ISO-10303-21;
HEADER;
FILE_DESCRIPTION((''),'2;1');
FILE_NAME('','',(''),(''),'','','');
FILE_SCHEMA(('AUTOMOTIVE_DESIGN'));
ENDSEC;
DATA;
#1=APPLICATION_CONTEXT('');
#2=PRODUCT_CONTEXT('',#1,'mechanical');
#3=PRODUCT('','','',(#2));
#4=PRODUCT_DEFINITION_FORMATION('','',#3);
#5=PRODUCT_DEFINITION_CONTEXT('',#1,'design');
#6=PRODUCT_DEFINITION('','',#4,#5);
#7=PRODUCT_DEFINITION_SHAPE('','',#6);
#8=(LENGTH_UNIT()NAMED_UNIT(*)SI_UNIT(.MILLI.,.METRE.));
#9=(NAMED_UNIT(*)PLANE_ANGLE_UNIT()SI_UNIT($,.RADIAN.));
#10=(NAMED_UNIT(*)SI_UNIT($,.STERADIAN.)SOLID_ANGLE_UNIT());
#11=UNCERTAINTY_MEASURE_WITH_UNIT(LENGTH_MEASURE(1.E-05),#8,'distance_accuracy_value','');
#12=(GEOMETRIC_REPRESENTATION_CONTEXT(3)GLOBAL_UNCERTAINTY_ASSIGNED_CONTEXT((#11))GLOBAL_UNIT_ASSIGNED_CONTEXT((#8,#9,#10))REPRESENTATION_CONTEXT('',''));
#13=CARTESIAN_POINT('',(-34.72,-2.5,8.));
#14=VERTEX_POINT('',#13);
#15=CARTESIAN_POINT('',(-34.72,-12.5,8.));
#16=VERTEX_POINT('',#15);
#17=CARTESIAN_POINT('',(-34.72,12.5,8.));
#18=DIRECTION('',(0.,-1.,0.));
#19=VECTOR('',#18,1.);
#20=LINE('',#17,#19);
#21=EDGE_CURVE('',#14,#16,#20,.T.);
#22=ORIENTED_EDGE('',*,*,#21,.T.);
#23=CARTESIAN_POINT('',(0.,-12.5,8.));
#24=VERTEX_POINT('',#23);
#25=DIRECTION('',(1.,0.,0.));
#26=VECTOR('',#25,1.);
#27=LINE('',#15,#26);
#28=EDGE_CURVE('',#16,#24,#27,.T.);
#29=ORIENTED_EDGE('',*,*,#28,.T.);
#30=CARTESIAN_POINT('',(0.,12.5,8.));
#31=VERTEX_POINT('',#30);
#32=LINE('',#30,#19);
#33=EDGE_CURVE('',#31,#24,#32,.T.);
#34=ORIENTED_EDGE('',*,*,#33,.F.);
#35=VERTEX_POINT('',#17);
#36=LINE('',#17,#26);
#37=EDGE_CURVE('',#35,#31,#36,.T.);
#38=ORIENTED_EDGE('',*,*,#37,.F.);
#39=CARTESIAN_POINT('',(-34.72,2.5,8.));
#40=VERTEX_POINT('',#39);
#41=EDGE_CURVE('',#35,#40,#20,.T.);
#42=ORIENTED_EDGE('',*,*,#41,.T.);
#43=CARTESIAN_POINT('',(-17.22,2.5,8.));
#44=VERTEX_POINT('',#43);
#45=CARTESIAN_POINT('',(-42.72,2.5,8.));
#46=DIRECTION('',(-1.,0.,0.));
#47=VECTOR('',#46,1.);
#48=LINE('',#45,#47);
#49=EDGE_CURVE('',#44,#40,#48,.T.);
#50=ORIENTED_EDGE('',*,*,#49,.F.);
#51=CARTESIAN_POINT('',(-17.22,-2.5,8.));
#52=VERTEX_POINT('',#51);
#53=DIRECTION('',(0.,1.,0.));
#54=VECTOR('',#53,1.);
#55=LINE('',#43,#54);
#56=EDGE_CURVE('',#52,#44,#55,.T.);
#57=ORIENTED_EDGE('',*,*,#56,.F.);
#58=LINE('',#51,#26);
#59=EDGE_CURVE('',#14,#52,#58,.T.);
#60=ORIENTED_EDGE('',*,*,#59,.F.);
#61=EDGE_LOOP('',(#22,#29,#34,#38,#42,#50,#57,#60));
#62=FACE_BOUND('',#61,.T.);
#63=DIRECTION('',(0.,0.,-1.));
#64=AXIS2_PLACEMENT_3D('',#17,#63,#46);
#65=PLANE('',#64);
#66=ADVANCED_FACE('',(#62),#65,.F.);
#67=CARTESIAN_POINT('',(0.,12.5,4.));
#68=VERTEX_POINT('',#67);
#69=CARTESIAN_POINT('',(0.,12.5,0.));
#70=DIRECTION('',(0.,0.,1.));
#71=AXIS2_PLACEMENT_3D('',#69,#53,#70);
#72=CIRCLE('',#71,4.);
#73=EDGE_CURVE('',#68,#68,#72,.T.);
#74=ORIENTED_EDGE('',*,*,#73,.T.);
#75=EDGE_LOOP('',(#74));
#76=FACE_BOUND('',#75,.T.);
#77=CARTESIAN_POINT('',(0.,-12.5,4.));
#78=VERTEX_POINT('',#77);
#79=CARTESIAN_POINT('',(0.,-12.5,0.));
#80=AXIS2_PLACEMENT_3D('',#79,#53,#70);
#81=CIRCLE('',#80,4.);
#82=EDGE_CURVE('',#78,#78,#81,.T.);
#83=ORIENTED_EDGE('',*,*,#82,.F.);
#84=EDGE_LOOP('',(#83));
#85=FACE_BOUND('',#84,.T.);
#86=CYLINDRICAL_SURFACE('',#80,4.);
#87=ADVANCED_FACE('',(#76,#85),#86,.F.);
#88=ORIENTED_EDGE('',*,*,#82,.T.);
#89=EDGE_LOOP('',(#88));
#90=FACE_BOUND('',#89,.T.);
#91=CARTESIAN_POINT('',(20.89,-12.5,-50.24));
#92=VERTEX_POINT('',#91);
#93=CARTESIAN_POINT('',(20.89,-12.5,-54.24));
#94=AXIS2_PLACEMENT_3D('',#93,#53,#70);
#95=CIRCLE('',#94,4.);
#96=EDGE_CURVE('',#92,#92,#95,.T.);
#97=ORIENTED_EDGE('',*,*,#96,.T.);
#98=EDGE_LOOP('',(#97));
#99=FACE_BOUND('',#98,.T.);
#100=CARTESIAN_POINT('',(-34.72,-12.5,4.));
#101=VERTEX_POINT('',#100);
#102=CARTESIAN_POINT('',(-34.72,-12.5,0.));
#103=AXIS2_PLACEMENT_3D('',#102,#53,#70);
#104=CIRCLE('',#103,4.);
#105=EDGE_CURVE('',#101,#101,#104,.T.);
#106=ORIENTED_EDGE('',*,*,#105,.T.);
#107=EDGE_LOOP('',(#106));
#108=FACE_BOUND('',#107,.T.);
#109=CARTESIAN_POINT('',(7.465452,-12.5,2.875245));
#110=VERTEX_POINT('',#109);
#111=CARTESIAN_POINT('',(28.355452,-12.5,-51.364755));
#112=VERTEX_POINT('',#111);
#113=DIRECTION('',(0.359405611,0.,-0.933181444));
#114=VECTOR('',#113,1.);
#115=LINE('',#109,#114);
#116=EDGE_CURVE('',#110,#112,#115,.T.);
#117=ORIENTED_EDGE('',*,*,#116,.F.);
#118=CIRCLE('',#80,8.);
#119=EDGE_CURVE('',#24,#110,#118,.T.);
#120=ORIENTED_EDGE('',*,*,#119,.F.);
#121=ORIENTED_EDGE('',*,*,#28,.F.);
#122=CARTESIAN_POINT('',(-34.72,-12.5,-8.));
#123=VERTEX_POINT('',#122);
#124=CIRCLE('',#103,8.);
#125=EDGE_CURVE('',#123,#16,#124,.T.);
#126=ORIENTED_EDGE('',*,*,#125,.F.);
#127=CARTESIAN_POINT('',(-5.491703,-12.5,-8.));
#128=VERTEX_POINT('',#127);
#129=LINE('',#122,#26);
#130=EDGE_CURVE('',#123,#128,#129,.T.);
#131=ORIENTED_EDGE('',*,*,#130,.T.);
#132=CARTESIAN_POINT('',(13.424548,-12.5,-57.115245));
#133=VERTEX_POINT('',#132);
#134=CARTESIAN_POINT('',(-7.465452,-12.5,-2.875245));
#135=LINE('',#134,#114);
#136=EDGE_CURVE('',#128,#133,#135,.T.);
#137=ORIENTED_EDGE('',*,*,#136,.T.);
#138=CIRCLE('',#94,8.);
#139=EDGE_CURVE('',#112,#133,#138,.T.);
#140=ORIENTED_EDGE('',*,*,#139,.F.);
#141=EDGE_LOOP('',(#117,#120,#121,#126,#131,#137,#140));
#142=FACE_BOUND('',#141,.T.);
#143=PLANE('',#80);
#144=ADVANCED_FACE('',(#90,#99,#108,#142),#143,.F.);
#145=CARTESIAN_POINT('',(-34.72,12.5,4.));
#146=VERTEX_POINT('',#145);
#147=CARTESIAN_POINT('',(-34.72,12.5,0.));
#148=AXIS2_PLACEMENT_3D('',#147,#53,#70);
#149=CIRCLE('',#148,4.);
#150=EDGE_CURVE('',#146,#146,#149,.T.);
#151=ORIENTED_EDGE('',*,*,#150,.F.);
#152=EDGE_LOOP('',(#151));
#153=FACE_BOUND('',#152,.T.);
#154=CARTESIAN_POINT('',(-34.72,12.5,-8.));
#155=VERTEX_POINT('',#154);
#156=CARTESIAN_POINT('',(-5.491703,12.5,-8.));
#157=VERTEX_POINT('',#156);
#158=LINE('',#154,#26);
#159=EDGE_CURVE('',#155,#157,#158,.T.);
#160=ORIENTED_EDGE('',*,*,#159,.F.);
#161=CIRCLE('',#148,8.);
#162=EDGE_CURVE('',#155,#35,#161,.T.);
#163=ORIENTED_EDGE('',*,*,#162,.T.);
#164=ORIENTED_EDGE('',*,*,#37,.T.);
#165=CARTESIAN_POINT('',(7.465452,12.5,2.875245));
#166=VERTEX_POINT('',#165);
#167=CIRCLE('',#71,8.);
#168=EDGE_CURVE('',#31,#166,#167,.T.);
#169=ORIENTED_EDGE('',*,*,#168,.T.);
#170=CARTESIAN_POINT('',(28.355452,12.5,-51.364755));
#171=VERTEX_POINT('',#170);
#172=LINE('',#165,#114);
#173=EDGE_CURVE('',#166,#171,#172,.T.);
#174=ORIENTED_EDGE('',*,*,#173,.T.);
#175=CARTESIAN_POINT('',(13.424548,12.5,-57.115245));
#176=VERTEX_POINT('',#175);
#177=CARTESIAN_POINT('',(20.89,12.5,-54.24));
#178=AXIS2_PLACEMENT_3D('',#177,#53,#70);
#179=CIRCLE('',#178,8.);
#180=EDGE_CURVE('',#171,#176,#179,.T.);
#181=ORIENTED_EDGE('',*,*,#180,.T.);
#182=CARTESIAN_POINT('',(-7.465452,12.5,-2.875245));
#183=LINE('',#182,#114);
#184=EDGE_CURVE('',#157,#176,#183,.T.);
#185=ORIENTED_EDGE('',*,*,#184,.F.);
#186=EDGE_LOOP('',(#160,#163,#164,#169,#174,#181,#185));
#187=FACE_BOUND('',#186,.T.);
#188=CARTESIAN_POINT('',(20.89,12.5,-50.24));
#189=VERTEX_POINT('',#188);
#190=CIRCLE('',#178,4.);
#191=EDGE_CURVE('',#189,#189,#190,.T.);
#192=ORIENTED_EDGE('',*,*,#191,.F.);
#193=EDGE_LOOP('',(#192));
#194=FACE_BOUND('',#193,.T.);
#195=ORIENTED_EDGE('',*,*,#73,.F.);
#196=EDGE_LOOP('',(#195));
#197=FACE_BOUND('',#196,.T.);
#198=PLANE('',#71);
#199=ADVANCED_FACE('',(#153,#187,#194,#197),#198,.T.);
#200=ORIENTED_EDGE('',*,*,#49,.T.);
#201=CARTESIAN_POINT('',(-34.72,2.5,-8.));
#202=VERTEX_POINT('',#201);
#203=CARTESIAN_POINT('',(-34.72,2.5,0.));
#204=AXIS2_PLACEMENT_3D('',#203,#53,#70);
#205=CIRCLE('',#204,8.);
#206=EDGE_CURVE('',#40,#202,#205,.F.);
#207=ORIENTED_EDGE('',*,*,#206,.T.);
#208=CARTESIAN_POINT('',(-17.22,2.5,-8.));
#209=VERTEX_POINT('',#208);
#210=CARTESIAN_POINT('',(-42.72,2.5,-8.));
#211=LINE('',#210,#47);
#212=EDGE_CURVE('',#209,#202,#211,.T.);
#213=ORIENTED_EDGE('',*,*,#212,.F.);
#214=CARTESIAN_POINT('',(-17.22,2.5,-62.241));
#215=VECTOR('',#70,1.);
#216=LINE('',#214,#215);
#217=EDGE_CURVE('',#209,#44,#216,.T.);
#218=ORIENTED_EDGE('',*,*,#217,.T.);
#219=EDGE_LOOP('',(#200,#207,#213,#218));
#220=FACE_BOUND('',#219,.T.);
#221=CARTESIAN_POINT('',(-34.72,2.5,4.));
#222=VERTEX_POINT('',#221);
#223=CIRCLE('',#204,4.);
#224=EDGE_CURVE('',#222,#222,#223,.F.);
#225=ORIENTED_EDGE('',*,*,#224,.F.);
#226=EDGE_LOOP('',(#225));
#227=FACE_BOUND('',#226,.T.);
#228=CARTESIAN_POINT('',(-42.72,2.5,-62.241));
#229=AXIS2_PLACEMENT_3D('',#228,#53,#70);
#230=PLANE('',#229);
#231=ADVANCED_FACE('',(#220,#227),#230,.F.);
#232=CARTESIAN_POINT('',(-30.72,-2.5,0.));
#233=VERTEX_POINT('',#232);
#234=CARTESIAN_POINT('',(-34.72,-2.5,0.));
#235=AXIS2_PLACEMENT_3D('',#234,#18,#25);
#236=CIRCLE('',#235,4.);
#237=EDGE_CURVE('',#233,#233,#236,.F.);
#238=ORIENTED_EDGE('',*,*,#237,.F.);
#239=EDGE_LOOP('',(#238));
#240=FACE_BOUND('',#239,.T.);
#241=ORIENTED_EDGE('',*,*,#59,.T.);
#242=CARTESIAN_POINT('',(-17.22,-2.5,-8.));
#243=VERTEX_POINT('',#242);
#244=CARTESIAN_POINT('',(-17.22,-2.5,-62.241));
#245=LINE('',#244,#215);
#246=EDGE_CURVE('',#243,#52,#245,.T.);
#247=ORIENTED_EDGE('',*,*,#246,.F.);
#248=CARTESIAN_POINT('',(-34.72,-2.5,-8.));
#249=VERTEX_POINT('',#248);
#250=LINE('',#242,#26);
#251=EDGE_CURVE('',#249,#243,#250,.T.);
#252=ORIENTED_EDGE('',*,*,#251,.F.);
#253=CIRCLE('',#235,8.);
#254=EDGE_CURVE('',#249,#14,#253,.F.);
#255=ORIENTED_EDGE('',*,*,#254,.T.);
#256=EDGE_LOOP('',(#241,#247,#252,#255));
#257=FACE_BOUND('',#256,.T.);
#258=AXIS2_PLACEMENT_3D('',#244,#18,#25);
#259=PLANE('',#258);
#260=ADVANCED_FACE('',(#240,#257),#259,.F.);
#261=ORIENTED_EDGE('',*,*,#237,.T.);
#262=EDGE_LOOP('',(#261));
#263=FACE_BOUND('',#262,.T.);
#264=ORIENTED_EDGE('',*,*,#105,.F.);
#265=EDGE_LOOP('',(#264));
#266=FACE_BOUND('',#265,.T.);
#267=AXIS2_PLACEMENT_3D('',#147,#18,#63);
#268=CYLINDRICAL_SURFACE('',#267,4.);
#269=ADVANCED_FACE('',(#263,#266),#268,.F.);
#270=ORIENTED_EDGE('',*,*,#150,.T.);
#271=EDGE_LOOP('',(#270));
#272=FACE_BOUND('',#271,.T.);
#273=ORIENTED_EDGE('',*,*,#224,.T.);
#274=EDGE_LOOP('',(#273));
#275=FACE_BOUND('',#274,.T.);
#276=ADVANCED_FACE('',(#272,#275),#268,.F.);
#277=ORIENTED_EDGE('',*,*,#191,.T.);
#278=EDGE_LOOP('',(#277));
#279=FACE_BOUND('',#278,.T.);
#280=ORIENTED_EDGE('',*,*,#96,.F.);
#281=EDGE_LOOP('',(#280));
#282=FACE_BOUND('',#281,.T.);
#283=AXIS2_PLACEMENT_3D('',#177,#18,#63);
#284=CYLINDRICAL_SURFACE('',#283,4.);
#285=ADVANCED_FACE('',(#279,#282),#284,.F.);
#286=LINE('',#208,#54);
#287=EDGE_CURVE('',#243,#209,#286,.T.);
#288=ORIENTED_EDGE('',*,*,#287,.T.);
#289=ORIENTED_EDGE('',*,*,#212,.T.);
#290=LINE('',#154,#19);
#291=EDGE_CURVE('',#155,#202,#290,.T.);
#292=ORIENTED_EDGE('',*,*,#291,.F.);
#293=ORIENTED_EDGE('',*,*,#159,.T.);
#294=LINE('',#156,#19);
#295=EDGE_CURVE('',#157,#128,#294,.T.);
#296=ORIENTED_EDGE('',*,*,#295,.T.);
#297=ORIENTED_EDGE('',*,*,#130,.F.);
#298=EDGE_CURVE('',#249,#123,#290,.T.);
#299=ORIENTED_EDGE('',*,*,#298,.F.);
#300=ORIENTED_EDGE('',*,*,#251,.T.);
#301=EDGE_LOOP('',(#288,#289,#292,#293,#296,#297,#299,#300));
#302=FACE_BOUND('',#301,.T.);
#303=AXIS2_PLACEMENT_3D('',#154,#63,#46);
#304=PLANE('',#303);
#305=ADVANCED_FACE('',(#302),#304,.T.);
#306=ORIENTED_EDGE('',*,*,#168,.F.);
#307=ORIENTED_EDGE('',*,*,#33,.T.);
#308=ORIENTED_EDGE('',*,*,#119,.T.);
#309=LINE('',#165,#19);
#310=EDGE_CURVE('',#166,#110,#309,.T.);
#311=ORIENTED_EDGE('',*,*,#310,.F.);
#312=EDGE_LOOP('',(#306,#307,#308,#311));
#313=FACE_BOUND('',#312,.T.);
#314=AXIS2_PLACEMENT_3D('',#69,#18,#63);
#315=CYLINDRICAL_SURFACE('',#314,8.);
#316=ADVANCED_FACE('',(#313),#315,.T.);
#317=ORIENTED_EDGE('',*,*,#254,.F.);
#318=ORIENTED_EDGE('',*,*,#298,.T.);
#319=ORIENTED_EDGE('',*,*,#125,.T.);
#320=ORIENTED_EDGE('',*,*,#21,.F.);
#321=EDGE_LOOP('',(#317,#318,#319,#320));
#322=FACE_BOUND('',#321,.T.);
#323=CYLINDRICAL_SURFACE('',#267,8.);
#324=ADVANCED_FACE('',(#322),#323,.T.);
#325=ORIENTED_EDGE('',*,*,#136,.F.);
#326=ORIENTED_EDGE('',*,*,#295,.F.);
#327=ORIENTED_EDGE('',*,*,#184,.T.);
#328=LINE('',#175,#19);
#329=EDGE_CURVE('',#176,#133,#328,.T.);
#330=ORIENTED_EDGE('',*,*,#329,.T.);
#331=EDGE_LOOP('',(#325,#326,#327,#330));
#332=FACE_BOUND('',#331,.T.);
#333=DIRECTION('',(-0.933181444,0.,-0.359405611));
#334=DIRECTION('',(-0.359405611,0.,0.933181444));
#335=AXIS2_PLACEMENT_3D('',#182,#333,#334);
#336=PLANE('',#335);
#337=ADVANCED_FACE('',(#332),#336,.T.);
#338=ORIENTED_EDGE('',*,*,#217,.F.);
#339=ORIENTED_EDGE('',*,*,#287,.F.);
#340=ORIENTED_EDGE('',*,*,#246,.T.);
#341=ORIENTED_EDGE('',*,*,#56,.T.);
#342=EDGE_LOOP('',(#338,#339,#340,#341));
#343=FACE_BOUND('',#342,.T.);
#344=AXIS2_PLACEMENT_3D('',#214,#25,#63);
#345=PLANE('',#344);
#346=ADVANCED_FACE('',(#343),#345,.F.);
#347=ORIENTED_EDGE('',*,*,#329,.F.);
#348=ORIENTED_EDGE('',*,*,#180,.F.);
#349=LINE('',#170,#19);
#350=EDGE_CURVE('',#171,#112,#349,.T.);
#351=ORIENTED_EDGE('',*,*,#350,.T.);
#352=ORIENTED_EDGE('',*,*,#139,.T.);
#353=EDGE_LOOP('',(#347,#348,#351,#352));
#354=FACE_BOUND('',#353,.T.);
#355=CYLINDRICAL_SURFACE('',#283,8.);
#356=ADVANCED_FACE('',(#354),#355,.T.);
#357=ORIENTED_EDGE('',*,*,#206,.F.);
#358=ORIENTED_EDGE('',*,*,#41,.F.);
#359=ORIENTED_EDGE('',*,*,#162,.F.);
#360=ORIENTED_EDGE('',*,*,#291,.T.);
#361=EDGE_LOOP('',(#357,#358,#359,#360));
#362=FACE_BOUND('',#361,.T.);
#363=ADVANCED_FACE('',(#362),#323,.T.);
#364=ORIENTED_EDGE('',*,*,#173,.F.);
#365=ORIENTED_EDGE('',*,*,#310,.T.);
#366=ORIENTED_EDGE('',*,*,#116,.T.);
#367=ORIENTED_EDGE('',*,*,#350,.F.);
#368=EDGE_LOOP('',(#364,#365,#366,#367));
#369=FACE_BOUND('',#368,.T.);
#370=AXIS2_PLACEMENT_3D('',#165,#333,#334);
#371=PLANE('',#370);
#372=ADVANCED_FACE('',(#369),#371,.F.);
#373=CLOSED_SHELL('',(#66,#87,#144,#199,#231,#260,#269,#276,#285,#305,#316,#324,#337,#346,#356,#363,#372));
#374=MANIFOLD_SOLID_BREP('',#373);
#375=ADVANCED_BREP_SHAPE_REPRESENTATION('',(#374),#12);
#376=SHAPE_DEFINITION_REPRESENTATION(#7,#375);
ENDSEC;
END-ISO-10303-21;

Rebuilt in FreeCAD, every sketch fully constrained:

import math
import FreeCAD as App
import Part
import Sketcher

doc = App.newDocument("Part")
body = doc.addObject("PartDesign::Body", "Body")

# Sketch on XZ plane
sketch1 = doc.addObject("Sketcher::SketchObject", "Sketch")
body.addObject(sketch1)
sketch1.AttachmentSupport = (doc.XZ_Plane, [""])
sketch1.MapMode = "FlatFace"
sketch1.addGeometry([
    Part.ArcOfCircle(Part.Circle(App.Vector(-34.7, 0, 0), App.Vector(0, 0, 1), 8), math.radians(90), math.radians(270)),  # 0
    Part.LineSegment(App.Vector(-34.7, 8, 0), App.Vector(0, 8, 0)),  # 1
    Part.ArcOfCircle(Part.Circle(App.Vector(0, 0, 0), App.Vector(0, 0, 1), 8), math.radians(21), math.radians(90)),  # 2
    Part.LineSegment(App.Vector(7.5, 2.9, 0), App.Vector(28.4, -51.4, 0)),  # 3
    Part.ArcOfCircle(Part.Circle(App.Vector(20.9, -54.2, 0), App.Vector(0, 0, 1), 8), math.radians(-159), math.radians(21)),  # 4
    Part.LineSegment(App.Vector(13.4, -57.1, 0), App.Vector(-5.5, -8, 0)),  # 5
    Part.LineSegment(App.Vector(-5.5, -8, 0), App.Vector(-34.7, -8, 0)),  # 6
    Part.Circle(App.Vector(-34.7, 0, 0), App.Vector(0, 0, 1), 4),  # 7
    Part.Circle(App.Vector(20.9, -54.2, 0), App.Vector(0, 0, 1), 4),  # 8
], False)
sketch1.addConstraint([
    Sketcher.Constraint("Tangent", 0, 1, 1, 1),
    Sketcher.Constraint("Coincident", 1, 2, 2, 2),
    Sketcher.Constraint("Tangent", 2, 1, 3, 1),
    Sketcher.Constraint("Tangent", 3, 2, 4, 2),
    Sketcher.Constraint("Tangent", 4, 1, 5, 1),
    Sketcher.Constraint("Coincident", 5, 2, 6, 1),
    Sketcher.Constraint("Tangent", 6, 2, 0, 2),
    Sketcher.Constraint("Horizontal", 1),
    Sketcher.Constraint("Horizontal", 6),
    Sketcher.Constraint("Coincident", 2, 3, -1, 1),
    Sketcher.Constraint("Coincident", 7, 3, 0, 3),
    Sketcher.Constraint("Coincident", 8, 3, 4, 3),
    Sketcher.Constraint("Equal", 0, 2),
    Sketcher.Constraint("Equal", 2, 4),
    Sketcher.Constraint("Equal", 7, 8),
    Sketcher.Constraint("Parallel", 3, 5),
    Sketcher.Constraint("Diameter", 7, 8.0),
    Sketcher.Constraint("Radius", 0, 8.0),
    Sketcher.Constraint("DistanceX", 0, 3, -1, 1, 34.72),
    Sketcher.Constraint("DistanceX", -1, 1, 4, 3, 20.89),
    Sketcher.Constraint("DistanceY", 4, 3, -1, 1, 54.24),
    Sketcher.Constraint("DistanceX", 1, 1, 1, 2, 34.717284),
])
pad1 = doc.addObject("PartDesign::Pad", "Pad")
body.addObject(pad1)
pad1.Profile = sketch1
pad1.Length = 25
pad1.Midplane = True

# Sketch on XY plane
sketch2 = doc.addObject("Sketcher::SketchObject", "Sketch001")
body.addObject(sketch2)
sketch2.AttachmentSupport = (doc.XY_Plane, [""])
sketch2.MapMode = "FlatFace"
sketch2.AttachmentOffset = App.Placement(App.Vector(0, 0, 8), App.Rotation())
sketch2.addGeometry([
    Part.LineSegment(App.Vector(-43, 2, 0), App.Vector(-43, -2, 0)),
    Part.LineSegment(App.Vector(-43, -2, 0), App.Vector(-17, -2, 0)),
    Part.LineSegment(App.Vector(-17, -2, 0), App.Vector(-17, 2, 0)),
    Part.LineSegment(App.Vector(-17, 2, 0), App.Vector(-43, 2, 0)),
], False)
sketch2.addConstraint([
    Sketcher.Constraint("Coincident", 0, 2, 1, 1),
    Sketcher.Constraint("Coincident", 1, 2, 2, 1),
    Sketcher.Constraint("Coincident", 2, 2, 3, 1),
    Sketcher.Constraint("Coincident", 3, 2, 0, 1),
    Sketcher.Constraint("Vertical", 0),
    Sketcher.Constraint("Horizontal", 1),
    Sketcher.Constraint("Vertical", 2),
    Sketcher.Constraint("Horizontal", 3),
    Sketcher.Constraint("DistanceY", 0, 2, 0, 1, 5.0),
    Sketcher.Constraint("DistanceX", 1, 1, 1, 2, 25.5),
    Sketcher.Constraint("DistanceY", 0, 2, -1, 1, 2.5),
    Sketcher.Constraint("DistanceX", 0, 2, -1, 1, 42.72),
])
pocket1 = doc.addObject("PartDesign::Pocket", "Pocket")
body.addObject(pocket1)
pocket1.Profile = sketch2
pocket1.Type = "UpToFirst"

# Sketch on XZ plane
sketch3 = doc.addObject("Sketcher::SketchObject", "Sketch002")
body.addObject(sketch3)
sketch3.AttachmentSupport = (doc.XZ_Plane, [""])
sketch3.MapMode = "FlatFace"
sketch3.AttachmentOffset = App.Placement(App.Vector(0, 0, -12.5), App.Rotation())
sketch3.addGeometry(Part.Circle(App.Vector(0, 0, 0), App.Vector(0, 0, 1), 4), False)
sketch3.addConstraint([
    Sketcher.Constraint("Coincident", 0, 3, -1, 1),
    Sketcher.Constraint("Diameter", 0, 8.0),
])
pocket2 = doc.addObject("PartDesign::Pocket", "Pocket001")
body.addObject(pocket2)
pocket2.Profile = sketch3
pocket2.Type = "ThroughAll"
pocket2.Reversed = True

doc.recompute()
